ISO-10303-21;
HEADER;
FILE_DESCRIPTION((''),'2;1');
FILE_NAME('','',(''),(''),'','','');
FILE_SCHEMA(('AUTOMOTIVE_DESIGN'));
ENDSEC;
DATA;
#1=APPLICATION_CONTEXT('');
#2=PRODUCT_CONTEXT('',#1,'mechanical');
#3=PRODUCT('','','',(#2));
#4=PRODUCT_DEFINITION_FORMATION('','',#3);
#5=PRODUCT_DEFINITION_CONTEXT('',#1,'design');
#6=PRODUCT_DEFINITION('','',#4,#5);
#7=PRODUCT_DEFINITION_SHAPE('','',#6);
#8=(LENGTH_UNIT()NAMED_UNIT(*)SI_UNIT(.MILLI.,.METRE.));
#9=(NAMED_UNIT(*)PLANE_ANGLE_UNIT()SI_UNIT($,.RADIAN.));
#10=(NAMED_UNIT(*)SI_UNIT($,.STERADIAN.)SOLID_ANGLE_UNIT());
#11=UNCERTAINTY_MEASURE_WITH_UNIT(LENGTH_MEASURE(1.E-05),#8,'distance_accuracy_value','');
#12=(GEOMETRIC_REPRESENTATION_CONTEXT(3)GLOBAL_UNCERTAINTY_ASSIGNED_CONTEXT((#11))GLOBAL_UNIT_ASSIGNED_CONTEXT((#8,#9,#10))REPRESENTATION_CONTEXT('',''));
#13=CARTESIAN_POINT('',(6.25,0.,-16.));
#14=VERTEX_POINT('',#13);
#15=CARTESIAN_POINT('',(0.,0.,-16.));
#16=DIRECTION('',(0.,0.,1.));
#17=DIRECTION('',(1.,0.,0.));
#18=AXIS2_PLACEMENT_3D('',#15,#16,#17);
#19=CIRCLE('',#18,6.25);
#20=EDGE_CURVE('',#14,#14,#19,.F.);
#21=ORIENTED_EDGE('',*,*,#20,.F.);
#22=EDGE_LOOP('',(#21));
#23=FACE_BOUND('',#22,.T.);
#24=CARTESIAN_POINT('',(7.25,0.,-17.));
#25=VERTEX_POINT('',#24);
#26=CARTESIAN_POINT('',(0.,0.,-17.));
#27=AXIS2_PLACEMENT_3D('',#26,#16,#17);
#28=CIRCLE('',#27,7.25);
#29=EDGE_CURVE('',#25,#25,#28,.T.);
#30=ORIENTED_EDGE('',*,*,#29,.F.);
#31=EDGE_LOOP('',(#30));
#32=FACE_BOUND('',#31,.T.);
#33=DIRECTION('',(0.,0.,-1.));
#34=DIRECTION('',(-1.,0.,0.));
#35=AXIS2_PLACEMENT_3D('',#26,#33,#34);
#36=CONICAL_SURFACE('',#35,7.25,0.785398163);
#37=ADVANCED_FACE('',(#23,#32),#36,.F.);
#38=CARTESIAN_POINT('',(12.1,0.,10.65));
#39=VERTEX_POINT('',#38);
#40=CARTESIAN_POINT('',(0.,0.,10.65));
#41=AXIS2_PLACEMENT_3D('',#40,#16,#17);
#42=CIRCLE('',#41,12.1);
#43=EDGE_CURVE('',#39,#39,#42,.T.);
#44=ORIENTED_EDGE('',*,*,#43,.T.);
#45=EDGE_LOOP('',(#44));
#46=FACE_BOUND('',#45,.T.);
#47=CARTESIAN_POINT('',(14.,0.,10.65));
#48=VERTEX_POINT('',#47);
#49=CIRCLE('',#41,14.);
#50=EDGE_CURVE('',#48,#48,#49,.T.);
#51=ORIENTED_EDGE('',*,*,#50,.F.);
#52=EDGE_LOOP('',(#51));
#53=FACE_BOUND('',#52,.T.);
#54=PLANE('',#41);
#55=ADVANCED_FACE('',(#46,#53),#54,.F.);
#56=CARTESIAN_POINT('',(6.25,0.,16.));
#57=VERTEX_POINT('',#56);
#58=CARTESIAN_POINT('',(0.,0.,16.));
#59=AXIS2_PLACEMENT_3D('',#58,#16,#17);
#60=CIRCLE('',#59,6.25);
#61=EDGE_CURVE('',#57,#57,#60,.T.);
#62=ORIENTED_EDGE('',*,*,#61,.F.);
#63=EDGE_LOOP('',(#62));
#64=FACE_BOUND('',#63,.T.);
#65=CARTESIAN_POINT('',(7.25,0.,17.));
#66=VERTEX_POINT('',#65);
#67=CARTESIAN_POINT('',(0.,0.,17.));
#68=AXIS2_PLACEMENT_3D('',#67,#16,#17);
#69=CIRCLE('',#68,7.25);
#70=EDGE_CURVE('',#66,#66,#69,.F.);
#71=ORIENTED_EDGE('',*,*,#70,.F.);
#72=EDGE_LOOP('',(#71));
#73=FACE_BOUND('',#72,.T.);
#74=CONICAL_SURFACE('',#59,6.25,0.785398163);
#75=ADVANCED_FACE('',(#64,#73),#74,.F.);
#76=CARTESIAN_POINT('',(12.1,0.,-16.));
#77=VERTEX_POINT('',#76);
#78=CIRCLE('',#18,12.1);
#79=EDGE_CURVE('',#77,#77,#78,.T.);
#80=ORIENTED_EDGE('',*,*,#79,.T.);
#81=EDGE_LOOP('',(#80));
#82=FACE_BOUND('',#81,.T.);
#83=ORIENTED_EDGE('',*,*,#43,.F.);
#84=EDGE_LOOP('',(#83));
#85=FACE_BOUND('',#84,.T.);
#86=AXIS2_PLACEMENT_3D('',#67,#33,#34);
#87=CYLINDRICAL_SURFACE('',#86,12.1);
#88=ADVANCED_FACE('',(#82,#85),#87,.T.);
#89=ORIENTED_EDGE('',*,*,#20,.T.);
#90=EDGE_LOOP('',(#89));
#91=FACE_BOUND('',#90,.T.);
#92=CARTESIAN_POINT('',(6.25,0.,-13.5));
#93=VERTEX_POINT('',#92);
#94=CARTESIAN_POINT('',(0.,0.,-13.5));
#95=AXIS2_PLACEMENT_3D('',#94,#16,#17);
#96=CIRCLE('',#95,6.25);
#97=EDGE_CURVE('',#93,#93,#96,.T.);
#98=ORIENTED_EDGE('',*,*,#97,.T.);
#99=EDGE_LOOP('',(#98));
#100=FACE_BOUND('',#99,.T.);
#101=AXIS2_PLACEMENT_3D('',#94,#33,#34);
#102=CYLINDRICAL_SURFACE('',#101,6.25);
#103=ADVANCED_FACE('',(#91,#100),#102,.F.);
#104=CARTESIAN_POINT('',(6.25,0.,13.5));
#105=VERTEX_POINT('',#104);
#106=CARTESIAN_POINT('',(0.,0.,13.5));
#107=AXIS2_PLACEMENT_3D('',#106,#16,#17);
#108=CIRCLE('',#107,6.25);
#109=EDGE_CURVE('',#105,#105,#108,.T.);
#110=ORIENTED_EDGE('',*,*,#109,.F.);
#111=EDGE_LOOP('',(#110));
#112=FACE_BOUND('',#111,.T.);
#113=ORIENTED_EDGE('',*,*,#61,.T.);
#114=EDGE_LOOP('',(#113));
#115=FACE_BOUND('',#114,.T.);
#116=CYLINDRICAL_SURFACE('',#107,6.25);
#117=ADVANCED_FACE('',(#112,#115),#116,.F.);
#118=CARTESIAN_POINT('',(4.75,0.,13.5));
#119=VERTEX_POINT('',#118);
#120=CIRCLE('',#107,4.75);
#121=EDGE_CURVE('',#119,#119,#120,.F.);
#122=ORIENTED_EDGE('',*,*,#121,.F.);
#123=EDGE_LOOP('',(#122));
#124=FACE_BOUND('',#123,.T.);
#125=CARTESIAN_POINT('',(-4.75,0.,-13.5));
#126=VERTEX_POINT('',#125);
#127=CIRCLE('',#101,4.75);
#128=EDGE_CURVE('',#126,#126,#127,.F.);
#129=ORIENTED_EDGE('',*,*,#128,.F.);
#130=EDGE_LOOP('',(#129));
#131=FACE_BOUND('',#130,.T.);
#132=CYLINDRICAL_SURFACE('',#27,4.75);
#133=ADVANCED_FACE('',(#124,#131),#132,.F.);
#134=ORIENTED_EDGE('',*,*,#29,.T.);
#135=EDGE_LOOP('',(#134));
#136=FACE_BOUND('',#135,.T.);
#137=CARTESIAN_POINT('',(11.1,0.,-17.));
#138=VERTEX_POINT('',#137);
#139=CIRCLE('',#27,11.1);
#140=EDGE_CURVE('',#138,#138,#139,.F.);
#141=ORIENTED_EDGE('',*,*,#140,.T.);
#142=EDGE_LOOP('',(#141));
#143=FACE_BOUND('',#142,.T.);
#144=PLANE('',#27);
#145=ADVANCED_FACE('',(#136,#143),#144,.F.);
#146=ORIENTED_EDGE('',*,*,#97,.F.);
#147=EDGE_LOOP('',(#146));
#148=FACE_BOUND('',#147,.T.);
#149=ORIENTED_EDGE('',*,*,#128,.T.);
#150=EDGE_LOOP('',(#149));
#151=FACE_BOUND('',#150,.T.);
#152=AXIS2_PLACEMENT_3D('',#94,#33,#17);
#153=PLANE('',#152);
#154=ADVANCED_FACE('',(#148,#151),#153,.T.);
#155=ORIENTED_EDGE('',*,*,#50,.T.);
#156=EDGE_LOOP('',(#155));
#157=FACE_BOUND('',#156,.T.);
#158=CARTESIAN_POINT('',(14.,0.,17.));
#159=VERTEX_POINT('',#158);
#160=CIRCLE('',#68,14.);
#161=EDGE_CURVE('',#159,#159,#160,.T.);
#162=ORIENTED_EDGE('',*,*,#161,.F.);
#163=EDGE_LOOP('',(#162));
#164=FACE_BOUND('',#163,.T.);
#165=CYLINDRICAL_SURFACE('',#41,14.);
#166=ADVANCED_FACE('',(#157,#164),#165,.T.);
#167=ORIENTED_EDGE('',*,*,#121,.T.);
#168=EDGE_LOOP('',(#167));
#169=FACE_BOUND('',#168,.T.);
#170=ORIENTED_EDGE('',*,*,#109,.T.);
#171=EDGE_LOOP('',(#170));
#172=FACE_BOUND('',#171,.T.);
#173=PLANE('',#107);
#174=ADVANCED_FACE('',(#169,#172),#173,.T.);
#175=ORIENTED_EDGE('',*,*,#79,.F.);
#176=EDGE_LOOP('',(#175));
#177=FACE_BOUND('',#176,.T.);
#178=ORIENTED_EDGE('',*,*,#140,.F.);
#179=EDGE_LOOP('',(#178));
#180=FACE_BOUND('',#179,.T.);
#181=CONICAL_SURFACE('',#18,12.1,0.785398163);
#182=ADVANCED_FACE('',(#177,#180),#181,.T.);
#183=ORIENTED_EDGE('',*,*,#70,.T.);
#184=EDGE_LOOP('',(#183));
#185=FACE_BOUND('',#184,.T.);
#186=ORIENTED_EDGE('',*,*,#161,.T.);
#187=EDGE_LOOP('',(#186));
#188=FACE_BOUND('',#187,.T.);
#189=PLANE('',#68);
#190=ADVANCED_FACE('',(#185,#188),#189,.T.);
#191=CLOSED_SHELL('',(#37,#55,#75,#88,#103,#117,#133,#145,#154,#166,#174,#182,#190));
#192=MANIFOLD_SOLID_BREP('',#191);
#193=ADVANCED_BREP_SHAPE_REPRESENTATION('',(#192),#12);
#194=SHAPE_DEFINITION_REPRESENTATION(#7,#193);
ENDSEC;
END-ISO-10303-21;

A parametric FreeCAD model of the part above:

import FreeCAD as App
import Part
import Sketcher
Q = App.Units.Quantity


def edges_at(feature, points):
    """Names of the edges that pass closest to the given points."""
    edges = feature.Shape.Edges
    near = lambda p: min(range(len(edges)), key=lambda i: edges[i].distToShape(Part.Vertex(*p))[0])
    return sorted({f"Edge{near(p) + 1}" for p in points})

doc = App.newDocument("Part")
params = doc.addObject("Spreadsheet::Sheet", "Params")
for row, (alias, value) in enumerate([
    ("sketch1_diameter", "24.2 mm"),
    ("pad1_length", "34 mm"),
    ("sketch2_diameter", "9.5 mm"),
    ("sketch3_diameter", "12.5 mm"),
    ("pocket2_length", "3.5 mm"),
    ("sketch4_diameter", "28 mm"),
    ("sketch4_diameter2", "12.5 mm"),
    ("pad2_length", "6.35 mm"),
    ("chamfer_size", "1 mm"),
], start=1):
    params.set(f"A{row}", alias)
    params.set(f"B{row}", "=" + value)
    params.setAlias(f"B{row}", alias)

body = doc.addObject("PartDesign::Body", "Body")

sketch1 = doc.addObject("Sketcher::SketchObject", "Sketch")
body.addObject(sketch1)
sketch1.AttachmentSupport = (doc.XY_Plane, [""])
sketch1.MapMode = "FlatFace"
sketch1.addGeometry(Part.Circle(App.Vector(0, 0, 0), App.Vector(0, 0, 1), 12.1), False)
sketch1.addConstraint(Sketcher.Constraint("Coincident", 0, 3, -1, 1))
sketch1.addConstraint(Sketcher.Constraint("Diameter", 0, Q("24.2 mm")))
sketch1.setExpression("Constraints[1]", "Params.sketch1_diameter")
pad1 = doc.addObject("PartDesign::Pad", "Pad")
body.addObject(pad1)
pad1.Profile = sketch1
pad1.setExpression("Length", "Params.pad1_length")
pad1.Midplane = True

sketch2 = doc.addObject("Sketcher::SketchObject", "Sketch001")
body.addObject(sketch2)
sketch2.AttachmentSupport = (doc.XY_Plane, [""])
sketch2.MapMode = "FlatFace"
sketch2.AttachmentOffset = App.Placement(App.Vector(0, 0, 17), App.Rotation())
sketch2.addGeometry(Part.Circle(App.Vector(0, 0, 0), App.Vector(0, 0, 1), 4.75), False)
sketch2.addConstraint(Sketcher.Constraint("Coincident", 0, 3, -1, 1))
sketch2.addConstraint(Sketcher.Constraint("Diameter", 0, Q("9.5 mm")))
sketch2.setExpression("Constraints[1]", "Params.sketch2_diameter")
pocket1 = doc.addObject("PartDesign::Pocket", "Pocket")
body.addObject(pocket1)
pocket1.Profile = sketch2
pocket1.Type = "ThroughAll"

sketch3 = doc.addObject("Sketcher::SketchObject", "Sketch002")
body.addObject(sketch3)
sketch3.AttachmentSupport = (doc.XY_Plane, [""])
sketch3.MapMode = "FlatFace"
sketch3.AttachmentOffset = App.Placement(App.Vector(0, 0, 17), App.Rotation())
sketch3.addGeometry(Part.Circle(App.Vector(0, 0, 0), App.Vector(0, 0, 1), 6.25), False)
sketch3.addConstraint(Sketcher.Constraint("Coincident", 0, 3, -1, 1))
sketch3.addConstraint(Sketcher.Constraint("Diameter", 0, Q("12.5 mm")))
sketch3.setExpression("Constraints[1]", "Params.sketch3_diameter")
pocket2 = doc.addObject("PartDesign::Pocket", "Pocket001")
body.addObject(pocket2)
pocket2.Profile = sketch3
pocket2.setExpression("Length", "Params.pocket2_length")
doc.recompute()

mirrored = doc.addObject("PartDesign::Mirrored", "Mirrored")
body.addObject(mirrored)
mirrored.Originals = [pocket2]
mirrored.MirrorPlane = (doc.XY_Plane, [""])
body.Tip = mirrored

sketch4 = doc.addObject("Sketcher::SketchObject", "Sketch003")
body.addObject(sketch4)
sketch4.AttachmentSupport = (doc.XY_Plane, [""])
sketch4.MapMode = "FlatFace"
sketch4.AttachmentOffset = App.Placement(App.Vector(0, 0, 17), App.Rotation())
sketch4.addGeometry(Part.Circle(App.Vector(0, 0, 0), App.Vector(0, 0, 1), 14), False)
sketch4.addGeometry(Part.Circle(App.Vector(0, 0, 0), App.Vector(0, 0, 1), 6.25), False)
sketch4.addConstraint(Sketcher.Constraint("Coincident", 0, 3, -1, 1))
sketch4.addConstraint(Sketcher.Constraint("Coincident", 1, 3, -1, 1))
sketch4.addConstraint(Sketcher.Constraint("Diameter", 0, Q("28 mm")))
sketch4.addConstraint(Sketcher.Constraint("Diameter", 1, Q("12.5 mm")))
sketch4.setExpression("Constraints[2]", "Params.sketch4_diameter")
sketch4.setExpression("Constraints[3]", "Params.sketch4_diameter2")
pad2 = doc.addObject("PartDesign::Pad", "Pad001")
body.addObject(pad2)
pad2.Profile = sketch4
pad2.setExpression("Length", "Params.pad2_length")
pad2.Reversed = True
doc.recompute()

chamfer = doc.addObject("PartDesign::Chamfer", "Chamfer")
body.addObject(chamfer)
chamfer.Base = (pad2, edges_at(pad2, [(-6.25, 0, 17), (-6.25, 0, -17), (-12.1, 0, -17)]))
chamfer.setExpression("Size", "Params.chamfer_size")

doc.recompute()
